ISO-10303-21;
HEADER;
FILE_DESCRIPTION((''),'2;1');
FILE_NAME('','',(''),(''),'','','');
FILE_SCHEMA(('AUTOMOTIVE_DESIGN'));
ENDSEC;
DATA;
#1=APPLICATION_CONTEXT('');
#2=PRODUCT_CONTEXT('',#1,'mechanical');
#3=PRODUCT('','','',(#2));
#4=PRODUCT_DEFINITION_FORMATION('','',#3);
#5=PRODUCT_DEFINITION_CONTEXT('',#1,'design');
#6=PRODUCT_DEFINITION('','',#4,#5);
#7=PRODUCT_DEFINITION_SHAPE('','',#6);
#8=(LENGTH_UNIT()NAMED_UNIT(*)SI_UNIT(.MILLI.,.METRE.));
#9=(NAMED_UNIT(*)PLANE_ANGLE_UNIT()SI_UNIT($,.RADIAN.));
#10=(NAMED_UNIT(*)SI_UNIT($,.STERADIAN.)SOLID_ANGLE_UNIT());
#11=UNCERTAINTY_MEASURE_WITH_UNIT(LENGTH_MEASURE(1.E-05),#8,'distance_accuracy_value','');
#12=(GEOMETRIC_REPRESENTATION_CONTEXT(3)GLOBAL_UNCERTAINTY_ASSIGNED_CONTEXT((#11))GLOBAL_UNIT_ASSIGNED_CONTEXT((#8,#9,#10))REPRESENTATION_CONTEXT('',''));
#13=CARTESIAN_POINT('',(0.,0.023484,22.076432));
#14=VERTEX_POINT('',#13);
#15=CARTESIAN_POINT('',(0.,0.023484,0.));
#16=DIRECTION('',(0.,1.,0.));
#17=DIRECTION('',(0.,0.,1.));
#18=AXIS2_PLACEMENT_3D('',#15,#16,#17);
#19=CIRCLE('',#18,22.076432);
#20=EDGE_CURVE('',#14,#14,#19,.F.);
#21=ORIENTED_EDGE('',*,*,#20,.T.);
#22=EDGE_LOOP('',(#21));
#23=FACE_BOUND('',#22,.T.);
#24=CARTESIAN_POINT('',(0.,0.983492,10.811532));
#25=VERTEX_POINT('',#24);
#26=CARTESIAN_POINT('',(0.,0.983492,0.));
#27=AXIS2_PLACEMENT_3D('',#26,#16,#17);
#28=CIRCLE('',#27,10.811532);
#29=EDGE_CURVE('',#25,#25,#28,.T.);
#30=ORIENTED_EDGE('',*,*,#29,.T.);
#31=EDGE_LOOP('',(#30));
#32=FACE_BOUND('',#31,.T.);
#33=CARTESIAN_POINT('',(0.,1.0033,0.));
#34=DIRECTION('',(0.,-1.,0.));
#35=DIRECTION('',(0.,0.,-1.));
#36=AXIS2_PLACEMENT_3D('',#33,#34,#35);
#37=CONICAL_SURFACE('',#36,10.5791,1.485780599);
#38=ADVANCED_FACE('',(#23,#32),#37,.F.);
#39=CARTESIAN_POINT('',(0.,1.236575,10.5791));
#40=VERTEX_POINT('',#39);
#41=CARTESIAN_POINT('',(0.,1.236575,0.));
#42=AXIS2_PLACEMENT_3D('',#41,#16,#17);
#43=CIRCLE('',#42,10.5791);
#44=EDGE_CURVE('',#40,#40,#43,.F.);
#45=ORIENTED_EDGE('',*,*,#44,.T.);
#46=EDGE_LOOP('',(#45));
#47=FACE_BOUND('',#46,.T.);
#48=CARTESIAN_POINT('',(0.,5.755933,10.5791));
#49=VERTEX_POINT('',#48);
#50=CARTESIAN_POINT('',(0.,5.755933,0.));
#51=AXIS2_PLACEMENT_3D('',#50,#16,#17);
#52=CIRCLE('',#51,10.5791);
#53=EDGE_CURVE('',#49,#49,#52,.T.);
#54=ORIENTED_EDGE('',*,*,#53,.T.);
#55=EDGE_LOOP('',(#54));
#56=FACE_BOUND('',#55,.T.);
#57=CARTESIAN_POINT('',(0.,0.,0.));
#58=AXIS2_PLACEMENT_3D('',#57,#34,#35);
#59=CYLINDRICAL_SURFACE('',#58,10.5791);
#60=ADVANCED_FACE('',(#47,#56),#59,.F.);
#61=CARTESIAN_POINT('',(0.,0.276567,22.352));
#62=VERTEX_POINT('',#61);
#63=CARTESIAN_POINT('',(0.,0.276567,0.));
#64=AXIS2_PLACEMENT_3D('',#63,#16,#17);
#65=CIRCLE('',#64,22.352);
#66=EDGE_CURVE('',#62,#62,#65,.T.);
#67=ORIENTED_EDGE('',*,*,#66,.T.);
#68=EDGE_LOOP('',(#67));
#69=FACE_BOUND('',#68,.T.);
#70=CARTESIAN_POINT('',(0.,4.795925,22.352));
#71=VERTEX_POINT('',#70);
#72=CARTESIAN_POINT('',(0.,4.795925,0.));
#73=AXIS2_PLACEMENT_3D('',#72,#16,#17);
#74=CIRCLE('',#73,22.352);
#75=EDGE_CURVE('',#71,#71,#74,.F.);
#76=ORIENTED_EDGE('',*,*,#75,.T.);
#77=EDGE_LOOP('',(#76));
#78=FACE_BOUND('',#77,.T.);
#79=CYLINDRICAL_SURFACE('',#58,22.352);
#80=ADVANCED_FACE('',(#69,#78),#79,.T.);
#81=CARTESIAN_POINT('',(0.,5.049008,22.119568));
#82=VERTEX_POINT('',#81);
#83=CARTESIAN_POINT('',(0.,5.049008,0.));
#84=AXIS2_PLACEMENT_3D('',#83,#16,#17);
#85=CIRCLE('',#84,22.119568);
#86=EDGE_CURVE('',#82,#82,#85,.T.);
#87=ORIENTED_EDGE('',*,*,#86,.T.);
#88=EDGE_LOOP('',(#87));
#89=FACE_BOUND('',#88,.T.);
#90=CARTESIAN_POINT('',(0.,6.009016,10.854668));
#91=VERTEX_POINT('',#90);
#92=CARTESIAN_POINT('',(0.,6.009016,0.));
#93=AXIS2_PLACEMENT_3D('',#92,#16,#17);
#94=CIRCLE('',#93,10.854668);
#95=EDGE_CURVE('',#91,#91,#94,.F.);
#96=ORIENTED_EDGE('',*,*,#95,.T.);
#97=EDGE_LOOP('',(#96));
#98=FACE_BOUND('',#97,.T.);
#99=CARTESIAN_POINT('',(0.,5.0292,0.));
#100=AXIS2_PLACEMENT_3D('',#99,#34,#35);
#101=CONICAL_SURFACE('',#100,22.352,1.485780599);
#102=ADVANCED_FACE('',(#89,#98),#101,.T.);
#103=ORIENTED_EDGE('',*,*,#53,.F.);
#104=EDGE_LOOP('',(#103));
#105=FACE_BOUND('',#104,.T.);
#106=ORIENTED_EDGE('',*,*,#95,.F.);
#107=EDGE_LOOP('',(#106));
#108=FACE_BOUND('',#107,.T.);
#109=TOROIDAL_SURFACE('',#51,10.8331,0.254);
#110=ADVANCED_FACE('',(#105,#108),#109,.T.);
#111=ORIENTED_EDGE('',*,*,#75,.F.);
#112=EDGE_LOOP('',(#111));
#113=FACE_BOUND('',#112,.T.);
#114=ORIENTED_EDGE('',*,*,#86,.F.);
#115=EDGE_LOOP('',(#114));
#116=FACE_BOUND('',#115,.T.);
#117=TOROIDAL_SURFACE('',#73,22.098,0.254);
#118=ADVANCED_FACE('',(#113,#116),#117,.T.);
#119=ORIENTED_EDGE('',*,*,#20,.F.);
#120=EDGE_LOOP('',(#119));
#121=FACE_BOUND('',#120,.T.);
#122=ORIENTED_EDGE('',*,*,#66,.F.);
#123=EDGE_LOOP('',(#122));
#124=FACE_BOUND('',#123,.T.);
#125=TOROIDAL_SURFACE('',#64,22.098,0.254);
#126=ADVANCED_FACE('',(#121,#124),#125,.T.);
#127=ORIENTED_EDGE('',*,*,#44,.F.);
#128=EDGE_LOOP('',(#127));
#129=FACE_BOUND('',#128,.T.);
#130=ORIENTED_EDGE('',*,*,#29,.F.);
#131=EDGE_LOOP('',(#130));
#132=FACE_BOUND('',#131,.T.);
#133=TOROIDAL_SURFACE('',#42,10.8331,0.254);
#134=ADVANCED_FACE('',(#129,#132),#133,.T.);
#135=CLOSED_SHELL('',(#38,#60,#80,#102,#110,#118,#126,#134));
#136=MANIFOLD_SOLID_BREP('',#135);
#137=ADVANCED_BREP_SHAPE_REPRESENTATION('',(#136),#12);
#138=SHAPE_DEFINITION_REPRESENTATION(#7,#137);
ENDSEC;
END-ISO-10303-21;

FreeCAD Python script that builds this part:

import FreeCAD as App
import Part
import Sketcher
Q = App.Units.Quantity


def edges_at(feature, points):
    """Names of the edges that pass closest to the given points."""
    edges = feature.Shape.Edges
    near = lambda p: min(range(len(edges)), key=lambda i: edges[i].distToShape(Part.Vertex(*p))[0])
    return sorted({f"Edge{near(p) + 1}" for p in points})

doc = App.newDocument("Part")
body = doc.addObject("PartDesign::Body", "Body")

# Sketch on YZ plane
sketch1 = body.newObject("Sketcher::SketchObject", "Sketch")
sketch1.AttachmentSupport = (doc.getObject("YZ_Plane"), [""])
sketch1.MapMode = "FlatFace"
sketch1.addGeometry([
    Part.LineSegment(App.Vector(6, -11, 0), App.Vector(1, -11, 0)),
    Part.LineSegment(App.Vector(1, -11, 0), App.Vector(0, -22, 0)),
    Part.LineSegment(App.Vector(0, -22, 0), App.Vector(5, -22, 0)),
    Part.LineSegment(App.Vector(5, -22, 0), App.Vector(6, -11, 0)),
], False)
sketch1.addConstraint([
    Sketcher.Constraint("Coincident", 0, 2, 1, 1),
    Sketcher.Constraint("Coincident", 1, 2, 2, 1),
    Sketcher.Constraint("Coincident", 2, 2, 3, 1),
    Sketcher.Constraint("Coincident", 3, 2, 0, 1),
    Sketcher.Constraint("Horizontal", 0),
    Sketcher.Constraint("Horizontal", 2),
    Sketcher.Constraint("PointOnObject", 1, 2, -2),
    Sketcher.Constraint("Parallel", 1, 3),
    Sketcher.Constraint("DistanceX", 0, 2, 0, 1, Q("0.198 in")),
    Sketcher.Constraint("DistanceY", 1, 2, -1, 1, Q("0.88 in")),
    Sketcher.Constraint("DistanceX", -1, 1, 0, 2, Q("0.0395 in")),
    Sketcher.Constraint("DistanceY", 0, 2, -1, 1, Q("0.4165 in")),
])
revolution = body.newObject("PartDesign::Revolution", "Revolution")
revolution.Profile = sketch1
revolution.ReferenceAxis = (sketch1, ["H_Axis"])
revolution.Angle = 360
doc.recompute()

fillet = body.newObject("PartDesign::Fillet", "Fillet")
fillet.Base = (revolution, edges_at(revolution, [
    (0, 5.029, 22.352),
    (0, 0, 22.352),
    (0, 1.003, 10.579),
    (0, 6.032, 10.579),
]))
fillet.Radius = Q("0.01 in")

doc.recompute()
